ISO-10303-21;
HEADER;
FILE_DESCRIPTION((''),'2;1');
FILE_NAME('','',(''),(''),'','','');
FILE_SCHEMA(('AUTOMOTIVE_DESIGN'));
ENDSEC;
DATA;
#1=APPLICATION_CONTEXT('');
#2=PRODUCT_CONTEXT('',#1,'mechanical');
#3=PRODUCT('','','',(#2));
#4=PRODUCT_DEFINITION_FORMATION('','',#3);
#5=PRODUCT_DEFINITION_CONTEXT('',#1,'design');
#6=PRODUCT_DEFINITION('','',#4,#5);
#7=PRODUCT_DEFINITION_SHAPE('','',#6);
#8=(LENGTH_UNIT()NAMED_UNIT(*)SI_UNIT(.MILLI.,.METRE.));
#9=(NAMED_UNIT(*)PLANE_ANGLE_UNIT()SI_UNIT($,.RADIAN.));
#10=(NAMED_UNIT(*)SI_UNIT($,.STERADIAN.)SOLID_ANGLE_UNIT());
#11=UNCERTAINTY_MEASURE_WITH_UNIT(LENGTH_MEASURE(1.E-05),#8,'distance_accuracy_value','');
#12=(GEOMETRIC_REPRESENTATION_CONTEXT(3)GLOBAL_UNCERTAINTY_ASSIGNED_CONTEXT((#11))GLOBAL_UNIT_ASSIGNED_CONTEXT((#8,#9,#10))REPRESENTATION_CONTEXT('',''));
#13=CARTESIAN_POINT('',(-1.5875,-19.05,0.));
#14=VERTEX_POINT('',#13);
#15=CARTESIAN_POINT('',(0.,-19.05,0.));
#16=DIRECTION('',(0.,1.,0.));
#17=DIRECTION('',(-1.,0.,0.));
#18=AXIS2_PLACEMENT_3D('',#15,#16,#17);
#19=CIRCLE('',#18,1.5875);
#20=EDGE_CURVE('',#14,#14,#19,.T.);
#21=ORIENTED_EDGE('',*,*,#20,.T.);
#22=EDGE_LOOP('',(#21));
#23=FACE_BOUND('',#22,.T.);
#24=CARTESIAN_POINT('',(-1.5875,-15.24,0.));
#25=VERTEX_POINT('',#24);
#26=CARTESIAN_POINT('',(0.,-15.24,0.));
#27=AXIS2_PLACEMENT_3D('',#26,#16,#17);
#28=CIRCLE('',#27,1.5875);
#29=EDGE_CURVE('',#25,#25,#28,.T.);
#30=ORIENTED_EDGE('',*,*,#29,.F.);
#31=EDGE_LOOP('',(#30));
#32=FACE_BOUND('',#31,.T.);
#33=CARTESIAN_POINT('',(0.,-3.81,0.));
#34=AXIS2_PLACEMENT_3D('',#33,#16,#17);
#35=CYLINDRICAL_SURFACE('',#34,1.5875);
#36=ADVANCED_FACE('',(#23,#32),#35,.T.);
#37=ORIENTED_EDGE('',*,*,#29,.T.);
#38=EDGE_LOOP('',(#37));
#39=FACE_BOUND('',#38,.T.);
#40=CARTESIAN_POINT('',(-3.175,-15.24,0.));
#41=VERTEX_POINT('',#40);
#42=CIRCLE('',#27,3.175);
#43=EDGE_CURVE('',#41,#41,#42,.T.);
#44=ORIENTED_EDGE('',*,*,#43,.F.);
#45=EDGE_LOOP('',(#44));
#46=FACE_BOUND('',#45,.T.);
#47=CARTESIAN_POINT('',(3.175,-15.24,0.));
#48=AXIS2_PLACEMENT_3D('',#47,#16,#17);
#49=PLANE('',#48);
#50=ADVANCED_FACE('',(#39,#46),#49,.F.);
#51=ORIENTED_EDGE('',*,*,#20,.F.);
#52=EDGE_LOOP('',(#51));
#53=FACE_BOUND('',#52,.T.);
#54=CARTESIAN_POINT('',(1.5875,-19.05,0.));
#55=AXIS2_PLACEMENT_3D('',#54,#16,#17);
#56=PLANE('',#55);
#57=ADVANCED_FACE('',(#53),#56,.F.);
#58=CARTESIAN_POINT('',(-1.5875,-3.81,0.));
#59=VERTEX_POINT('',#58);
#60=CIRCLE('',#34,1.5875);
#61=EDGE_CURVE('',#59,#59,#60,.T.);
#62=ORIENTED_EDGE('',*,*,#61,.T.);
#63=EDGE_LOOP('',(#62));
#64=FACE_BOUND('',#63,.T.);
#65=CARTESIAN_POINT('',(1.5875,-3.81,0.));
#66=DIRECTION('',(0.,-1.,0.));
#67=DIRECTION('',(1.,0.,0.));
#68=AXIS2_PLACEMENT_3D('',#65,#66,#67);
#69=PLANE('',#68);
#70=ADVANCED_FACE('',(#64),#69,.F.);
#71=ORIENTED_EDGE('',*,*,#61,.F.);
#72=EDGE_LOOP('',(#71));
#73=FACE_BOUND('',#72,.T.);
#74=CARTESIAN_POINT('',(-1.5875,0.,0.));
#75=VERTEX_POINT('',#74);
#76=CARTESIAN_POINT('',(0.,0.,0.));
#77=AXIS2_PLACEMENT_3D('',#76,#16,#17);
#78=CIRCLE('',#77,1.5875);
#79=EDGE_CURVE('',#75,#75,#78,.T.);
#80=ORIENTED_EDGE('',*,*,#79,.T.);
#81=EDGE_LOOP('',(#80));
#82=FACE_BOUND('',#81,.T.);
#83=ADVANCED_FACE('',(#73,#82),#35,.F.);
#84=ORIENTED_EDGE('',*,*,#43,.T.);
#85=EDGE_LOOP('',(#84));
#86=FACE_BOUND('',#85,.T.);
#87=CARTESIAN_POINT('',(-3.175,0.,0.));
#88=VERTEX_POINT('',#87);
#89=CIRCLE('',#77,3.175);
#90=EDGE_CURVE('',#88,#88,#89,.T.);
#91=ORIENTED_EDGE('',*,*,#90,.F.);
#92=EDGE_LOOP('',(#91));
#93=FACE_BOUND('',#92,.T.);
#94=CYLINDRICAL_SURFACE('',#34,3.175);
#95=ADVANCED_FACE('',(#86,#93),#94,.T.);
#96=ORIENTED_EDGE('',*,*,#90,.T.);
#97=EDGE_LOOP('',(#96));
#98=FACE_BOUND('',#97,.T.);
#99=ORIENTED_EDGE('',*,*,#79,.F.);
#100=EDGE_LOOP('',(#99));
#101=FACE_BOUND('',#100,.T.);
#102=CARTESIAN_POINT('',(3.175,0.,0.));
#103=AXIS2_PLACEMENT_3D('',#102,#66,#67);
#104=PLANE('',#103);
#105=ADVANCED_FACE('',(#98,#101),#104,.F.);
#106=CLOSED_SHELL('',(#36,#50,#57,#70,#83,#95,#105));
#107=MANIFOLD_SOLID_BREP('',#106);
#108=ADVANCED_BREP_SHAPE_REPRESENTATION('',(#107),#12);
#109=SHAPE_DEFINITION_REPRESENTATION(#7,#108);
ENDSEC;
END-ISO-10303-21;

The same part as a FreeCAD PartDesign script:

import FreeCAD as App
import Part
import Sketcher

V = App.Vector
Q = App.Units.Quantity


def add_polygon(sketch, points):
    """Adds a closed chain of lines whose ends are joined by coincident constraints."""
    first, n = sketch.GeometryCount, len(points)
    for a, b in zip(points, points[1:] + points[:1]):
        sketch.addGeometry(Part.LineSegment(App.Vector(*a, 0), App.Vector(*b, 0)), False)
    for i in range(n):
        sketch.addConstraint(Sketcher.Constraint("Coincident", first + i, 2, first + (i + 1) % n, 1))

doc = App.newDocument("Part")
body = doc.addObject("PartDesign::Body", "Body")

sketch1 = body.newObject("Sketcher::SketchObject", "Sketch")
sketch1.AttachmentSupport = (doc.getObject("XY_Plane"), [""])
sketch1.MapMode = "FlatFace"
add_polygon(sketch1, [(3.2, -15.2), (3.2, 0), (1.6, 0), (1.6, -3.8), (0, -3.8), (0, -19.1), (1.6, -19.1), (1.6, -15.2)])
sketch1.addConstraint([
    Sketcher.Constraint("Vertical", 0),
    Sketcher.Constraint("Horizontal", 1),
    Sketcher.Constraint("Vertical", 2),
    Sketcher.Constraint("Horizontal", 3),
    Sketcher.Constraint("Vertical", 4),
    Sketcher.Constraint("Horizontal", 5),
    Sketcher.Constraint("Vertical", 6),
    Sketcher.Constraint("Horizontal", 7),
    Sketcher.Constraint("PointOnObject", 0, 2, -1),
    Sketcher.Constraint("PointOnObject", 3, 2, -2),
    Sketcher.Constraint("Vertical", 2, 2, 5, 2),
    Sketcher.Constraint("Equal", 1, 3),
    Sketcher.Constraint("Equal", 0, 4),
    Sketcher.Constraint("DistanceY", 0, 1, 0, 2, Q("0.6 in")),
    Sketcher.Constraint("DistanceY", 2, 2, 2, 1, Q("0.15 in")),
    Sketcher.Constraint("DistanceX", 1, 2, 1, 1, Q("0.0625 in")),
])
revolution = body.newObject("PartDesign::Revolution", "Revolution")
revolution.Profile = sketch1
revolution.ReferenceAxis = (sketch1, ["V_Axis"])
revolution.Angle = 360

doc.recompute()
